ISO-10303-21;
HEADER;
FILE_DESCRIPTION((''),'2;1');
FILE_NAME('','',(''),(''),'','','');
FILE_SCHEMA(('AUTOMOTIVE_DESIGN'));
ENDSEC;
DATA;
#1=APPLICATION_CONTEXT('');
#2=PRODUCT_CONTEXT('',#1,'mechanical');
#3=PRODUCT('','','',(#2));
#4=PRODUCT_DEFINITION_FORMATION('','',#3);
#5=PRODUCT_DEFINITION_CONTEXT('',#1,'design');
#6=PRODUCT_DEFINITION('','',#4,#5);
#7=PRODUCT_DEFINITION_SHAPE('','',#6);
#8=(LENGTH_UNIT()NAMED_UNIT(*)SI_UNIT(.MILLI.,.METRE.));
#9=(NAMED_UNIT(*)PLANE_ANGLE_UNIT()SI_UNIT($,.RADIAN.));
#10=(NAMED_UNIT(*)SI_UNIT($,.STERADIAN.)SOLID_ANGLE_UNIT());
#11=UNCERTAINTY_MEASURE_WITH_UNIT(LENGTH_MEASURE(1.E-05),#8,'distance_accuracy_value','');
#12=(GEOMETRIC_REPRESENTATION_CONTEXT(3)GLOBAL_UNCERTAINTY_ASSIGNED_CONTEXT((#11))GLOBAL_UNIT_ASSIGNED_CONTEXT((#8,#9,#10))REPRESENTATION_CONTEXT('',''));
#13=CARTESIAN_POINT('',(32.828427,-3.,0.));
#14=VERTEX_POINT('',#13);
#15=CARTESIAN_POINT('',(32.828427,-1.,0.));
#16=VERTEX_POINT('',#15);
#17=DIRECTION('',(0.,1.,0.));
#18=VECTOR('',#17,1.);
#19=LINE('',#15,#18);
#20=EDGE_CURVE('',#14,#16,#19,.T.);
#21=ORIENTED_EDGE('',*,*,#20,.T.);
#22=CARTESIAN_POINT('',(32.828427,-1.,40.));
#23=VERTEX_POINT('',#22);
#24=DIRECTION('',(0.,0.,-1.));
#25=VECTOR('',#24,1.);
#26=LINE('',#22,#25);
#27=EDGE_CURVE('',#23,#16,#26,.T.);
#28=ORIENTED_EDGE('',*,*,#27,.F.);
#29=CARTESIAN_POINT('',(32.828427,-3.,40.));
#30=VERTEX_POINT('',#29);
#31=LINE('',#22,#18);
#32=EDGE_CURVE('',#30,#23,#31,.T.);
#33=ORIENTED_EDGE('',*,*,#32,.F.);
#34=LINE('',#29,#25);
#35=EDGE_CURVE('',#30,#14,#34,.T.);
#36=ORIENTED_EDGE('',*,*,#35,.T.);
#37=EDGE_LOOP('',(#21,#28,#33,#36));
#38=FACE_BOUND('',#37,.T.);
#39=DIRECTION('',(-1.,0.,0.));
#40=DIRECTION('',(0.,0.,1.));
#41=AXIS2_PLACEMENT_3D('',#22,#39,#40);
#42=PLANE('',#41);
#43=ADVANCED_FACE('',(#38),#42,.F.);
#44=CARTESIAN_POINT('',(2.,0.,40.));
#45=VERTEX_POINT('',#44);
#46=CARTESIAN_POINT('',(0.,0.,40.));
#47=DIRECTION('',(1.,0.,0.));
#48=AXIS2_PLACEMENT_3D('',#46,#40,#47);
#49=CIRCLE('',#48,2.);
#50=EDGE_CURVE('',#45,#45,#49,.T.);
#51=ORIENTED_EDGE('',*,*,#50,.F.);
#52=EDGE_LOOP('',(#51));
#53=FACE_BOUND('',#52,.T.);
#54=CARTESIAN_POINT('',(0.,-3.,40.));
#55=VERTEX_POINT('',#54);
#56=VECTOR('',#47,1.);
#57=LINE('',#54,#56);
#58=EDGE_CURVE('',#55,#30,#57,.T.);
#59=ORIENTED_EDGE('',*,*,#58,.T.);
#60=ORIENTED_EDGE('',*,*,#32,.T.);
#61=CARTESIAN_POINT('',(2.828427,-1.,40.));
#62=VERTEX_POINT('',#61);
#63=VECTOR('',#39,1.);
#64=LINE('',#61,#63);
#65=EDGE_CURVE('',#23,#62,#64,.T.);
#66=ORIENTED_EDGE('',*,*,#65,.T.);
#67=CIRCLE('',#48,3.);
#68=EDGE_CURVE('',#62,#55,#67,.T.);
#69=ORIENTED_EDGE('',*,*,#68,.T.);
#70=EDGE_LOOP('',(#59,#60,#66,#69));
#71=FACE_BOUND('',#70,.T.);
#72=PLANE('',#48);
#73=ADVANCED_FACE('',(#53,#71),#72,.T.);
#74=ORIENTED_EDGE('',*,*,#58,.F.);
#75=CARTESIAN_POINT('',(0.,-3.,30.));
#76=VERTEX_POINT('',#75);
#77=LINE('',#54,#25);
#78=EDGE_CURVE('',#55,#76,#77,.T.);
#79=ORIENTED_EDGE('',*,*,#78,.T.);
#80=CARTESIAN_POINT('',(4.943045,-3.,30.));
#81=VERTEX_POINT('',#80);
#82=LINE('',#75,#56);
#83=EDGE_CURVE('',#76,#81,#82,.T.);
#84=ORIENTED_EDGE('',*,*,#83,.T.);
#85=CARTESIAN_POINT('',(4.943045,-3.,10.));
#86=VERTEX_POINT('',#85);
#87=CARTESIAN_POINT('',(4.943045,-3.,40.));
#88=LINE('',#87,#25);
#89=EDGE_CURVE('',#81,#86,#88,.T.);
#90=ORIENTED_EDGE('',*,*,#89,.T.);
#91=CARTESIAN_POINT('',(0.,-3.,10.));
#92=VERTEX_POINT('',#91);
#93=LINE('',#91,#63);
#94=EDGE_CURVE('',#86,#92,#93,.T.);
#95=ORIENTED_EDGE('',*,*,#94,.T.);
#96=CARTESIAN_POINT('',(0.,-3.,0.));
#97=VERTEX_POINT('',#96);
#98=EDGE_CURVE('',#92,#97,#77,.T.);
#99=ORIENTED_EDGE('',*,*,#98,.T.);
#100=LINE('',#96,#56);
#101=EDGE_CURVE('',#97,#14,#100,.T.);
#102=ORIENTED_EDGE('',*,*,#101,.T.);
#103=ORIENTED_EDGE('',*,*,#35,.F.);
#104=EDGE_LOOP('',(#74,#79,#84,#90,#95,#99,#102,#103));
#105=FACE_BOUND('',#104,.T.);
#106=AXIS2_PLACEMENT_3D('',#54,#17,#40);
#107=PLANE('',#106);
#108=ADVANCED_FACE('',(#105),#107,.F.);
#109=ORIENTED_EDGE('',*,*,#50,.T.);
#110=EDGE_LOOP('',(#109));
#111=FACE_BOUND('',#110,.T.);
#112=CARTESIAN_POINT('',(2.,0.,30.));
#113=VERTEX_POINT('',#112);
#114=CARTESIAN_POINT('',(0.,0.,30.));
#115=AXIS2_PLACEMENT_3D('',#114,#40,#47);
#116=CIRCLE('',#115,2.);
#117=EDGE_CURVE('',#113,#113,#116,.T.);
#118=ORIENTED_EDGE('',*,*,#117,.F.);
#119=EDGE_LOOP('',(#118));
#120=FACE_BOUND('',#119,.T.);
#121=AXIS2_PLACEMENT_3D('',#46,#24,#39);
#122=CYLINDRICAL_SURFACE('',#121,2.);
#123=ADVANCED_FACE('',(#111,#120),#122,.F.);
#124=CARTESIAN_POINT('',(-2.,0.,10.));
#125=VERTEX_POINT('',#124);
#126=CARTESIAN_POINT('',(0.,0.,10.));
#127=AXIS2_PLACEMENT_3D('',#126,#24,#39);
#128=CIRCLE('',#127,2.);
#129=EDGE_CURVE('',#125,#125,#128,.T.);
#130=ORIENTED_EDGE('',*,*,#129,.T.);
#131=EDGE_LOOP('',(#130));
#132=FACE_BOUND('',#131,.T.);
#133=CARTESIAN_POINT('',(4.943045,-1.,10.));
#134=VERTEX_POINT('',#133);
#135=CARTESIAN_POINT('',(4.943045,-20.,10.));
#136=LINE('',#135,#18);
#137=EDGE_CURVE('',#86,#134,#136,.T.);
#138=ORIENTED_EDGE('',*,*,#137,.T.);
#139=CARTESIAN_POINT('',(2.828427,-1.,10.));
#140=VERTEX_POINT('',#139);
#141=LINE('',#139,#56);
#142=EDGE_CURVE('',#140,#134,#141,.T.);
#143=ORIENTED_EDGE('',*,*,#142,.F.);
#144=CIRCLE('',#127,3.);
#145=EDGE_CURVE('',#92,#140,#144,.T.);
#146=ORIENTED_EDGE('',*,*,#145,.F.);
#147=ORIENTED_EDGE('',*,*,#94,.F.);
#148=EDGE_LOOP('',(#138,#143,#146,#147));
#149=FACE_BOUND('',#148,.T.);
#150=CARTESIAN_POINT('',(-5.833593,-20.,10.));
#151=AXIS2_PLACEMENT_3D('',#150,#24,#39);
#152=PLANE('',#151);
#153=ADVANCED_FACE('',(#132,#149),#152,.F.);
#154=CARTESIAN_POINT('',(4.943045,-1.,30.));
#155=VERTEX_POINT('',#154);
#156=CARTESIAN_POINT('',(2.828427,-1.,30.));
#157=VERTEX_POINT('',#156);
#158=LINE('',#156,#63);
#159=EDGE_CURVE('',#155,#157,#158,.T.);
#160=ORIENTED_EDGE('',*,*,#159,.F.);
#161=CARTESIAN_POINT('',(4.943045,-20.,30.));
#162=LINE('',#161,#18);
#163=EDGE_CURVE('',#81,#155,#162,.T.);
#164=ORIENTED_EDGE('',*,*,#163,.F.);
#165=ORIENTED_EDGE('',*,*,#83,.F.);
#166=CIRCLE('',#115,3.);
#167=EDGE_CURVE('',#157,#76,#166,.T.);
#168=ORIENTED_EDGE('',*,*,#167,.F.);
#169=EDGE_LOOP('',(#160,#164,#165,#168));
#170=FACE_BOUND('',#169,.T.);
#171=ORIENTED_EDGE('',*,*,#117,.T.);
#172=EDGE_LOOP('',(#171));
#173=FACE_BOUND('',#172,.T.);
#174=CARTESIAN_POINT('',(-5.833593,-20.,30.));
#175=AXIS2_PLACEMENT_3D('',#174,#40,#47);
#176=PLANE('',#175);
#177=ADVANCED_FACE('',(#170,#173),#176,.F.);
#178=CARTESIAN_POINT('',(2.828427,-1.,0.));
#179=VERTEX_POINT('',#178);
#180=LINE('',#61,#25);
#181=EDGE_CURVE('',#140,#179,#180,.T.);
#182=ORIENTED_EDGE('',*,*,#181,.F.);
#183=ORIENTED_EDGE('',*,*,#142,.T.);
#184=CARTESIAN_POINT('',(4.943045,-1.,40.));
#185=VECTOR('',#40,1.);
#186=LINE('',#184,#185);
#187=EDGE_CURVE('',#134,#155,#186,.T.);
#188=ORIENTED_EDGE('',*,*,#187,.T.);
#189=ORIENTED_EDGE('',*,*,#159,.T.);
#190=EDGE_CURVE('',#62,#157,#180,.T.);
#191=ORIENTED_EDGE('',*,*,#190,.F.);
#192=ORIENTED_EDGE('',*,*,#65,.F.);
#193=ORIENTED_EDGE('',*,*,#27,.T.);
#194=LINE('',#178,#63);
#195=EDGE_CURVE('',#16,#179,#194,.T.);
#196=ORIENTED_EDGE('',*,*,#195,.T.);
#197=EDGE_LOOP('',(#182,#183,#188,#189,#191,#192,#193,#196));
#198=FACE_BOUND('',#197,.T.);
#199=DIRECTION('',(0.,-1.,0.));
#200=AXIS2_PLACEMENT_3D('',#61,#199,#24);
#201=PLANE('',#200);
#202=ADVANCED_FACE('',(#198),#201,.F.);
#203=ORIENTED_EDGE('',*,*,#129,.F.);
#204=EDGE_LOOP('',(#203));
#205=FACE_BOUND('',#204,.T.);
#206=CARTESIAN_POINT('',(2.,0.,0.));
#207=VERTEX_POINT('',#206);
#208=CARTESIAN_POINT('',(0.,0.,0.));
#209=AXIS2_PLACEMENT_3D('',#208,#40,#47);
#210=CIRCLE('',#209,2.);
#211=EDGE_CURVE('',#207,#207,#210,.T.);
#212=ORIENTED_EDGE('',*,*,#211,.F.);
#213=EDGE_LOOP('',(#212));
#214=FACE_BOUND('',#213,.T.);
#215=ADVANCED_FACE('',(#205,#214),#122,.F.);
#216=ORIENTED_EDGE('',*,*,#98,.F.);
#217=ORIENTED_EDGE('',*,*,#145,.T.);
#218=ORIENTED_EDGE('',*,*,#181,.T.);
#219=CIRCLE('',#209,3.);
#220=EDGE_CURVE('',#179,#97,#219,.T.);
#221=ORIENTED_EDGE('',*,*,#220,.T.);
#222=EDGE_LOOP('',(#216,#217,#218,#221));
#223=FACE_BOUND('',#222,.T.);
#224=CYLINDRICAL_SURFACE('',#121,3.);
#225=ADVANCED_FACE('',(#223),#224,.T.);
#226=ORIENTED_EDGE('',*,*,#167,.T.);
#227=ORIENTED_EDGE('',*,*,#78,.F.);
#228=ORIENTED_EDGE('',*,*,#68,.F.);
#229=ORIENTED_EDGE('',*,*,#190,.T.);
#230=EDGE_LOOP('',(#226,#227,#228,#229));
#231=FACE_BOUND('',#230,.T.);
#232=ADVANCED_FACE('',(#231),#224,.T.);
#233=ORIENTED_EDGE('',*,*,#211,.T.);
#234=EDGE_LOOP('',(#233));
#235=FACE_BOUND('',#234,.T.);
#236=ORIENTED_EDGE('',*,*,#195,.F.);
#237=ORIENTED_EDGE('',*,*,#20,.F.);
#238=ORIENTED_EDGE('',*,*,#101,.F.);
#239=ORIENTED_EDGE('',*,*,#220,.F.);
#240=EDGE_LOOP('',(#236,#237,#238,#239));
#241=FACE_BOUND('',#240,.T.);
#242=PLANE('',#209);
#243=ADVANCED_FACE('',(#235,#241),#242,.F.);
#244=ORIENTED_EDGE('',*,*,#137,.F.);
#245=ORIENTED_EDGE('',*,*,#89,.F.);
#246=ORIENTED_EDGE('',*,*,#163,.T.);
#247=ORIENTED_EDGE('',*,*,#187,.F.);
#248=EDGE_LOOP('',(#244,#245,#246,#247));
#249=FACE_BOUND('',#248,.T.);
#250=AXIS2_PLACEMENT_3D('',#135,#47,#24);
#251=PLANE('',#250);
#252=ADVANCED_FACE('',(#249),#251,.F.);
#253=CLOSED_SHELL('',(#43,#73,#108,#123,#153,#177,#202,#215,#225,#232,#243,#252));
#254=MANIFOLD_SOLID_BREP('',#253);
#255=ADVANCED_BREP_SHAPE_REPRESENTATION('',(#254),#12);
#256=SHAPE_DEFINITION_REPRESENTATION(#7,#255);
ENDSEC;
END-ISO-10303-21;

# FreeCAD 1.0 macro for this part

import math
import FreeCAD as App
import Part
import Sketcher
from FreeCAD import Vector
Q = App.Units.Quantity

doc = App.newDocument("Part")
params = doc.addObject("Spreadsheet::Sheet", "Params")
for row, (alias, value) in enumerate([
    ("sketch1_diameter", "4 mm"),
    ("sketch1_radius", "3 mm"),
    ("sketch1_width", "30 mm"),
    ("sketch1_height", "2 mm"),
    ("pad1_length", "40 mm"),
    ("sketch2_height", "20 mm"),
    ("pocket1_length", "40 mm"),
], start=1):
    params.set(f"A{row}", alias)
    params.set(f"B{row}", "=" + value)
    params.setAlias(f"B{row}", alias)

body = doc.addObject("PartDesign::Body", "Body")

sketch1 = doc.addObject("Sketcher::SketchObject", "Sketch")
body.addObject(sketch1)
sketch1.AttachmentSupport = (doc.XY_Plane, [""])
sketch1.MapMode = "FlatFace"
sketch1.addGeometry([
    Part.LineSegment(Vector(32.8, -1, 0), Vector(2.8, -1, 0)),
    Part.ArcOfCircle(Part.Circle(Vector(0, 0, 0), Vector(0, 0, 1), 3), math.radians(-19), math.radians(270)),
    Part.LineSegment(Vector(0, -3, 0), Vector(32.8, -3, 0)),
    Part.LineSegment(Vector(32.8, -3, 0), Vector(32.8, -1, 0)),
    Part.Circle(Vector(0, 0, 0), Vector(0, 0, 1), 2),
], False)
sketch1.addConstraint([
    Sketcher.Constraint("Coincident", 0, 2, 1, 1),
    Sketcher.Constraint("Tangent", 1, 2, 2, 1),
    Sketcher.Constraint("Coincident", 2, 2, 3, 1),
    Sketcher.Constraint("Coincident", 3, 2, 0, 1),
    Sketcher.Constraint("Horizontal", 0),
    Sketcher.Constraint("Horizontal", 2),
    Sketcher.Constraint("Vertical", 3),
    Sketcher.Constraint("Coincident", 1, 3, -1, 1),
    Sketcher.Constraint("Coincident", 4, 3, -1, 1),
    Sketcher.Constraint("Diameter", 4, Q("4 mm")),
    Sketcher.Constraint("Radius", 1, Q("3 mm")),
    Sketcher.Constraint("DistanceX", 0, 2, 0, 1, Q("30 mm")),
    Sketcher.Constraint("DistanceY", 3, 1, 3, 2, Q("2 mm")),
])
sketch1.setExpression("Constraints[9]", "Params.sketch1_diameter")
sketch1.setExpression("Constraints[10]", "Params.sketch1_radius")
sketch1.setExpression("Constraints[11]", "Params.sketch1_width")
sketch1.setExpression("Constraints[12]", "Params.sketch1_height")
pad1 = doc.addObject("PartDesign::Pad", "Pad")
body.addObject(pad1)
pad1.Profile = sketch1
pad1.setExpression("Length", "Params.pad1_length")

sketch2 = doc.addObject("Sketcher::SketchObject", "Sketch001")
body.addObject(sketch2)
sketch2.AttachmentSupport = (doc.XZ_Plane, [""])
sketch2.MapMode = "FlatFace"
sketch2.addGeometry([
    Part.LineSegment(Vector(-6, 10, 0), Vector(-6, 30, 0)),
    Part.LineSegment(Vector(-6, 30, 0), Vector(5, 30, 0)),
    Part.LineSegment(Vector(5, 30, 0), Vector(5, 10, 0)),
    Part.LineSegment(Vector(5, 10, 0), Vector(-6, 10, 0)),
], False)
sketch2.addConstraint([
    Sketcher.Constraint("Coincident", 0, 2, 1, 1),
    Sketcher.Constraint("Coincident", 1, 2, 2, 1),
    Sketcher.Constraint("Coincident", 2, 2, 3, 1),
    Sketcher.Constraint("Coincident", 3, 2, 0, 1),
    Sketcher.Constraint("Vertical", 0),
    Sketcher.Constraint("Horizontal", 1),
    Sketcher.Constraint("Vertical", 2),
    Sketcher.Constraint("Horizontal", 3),
    Sketcher.Constraint("DistanceY", 0, 1, 0, 2, Q("20 mm")),
    Sketcher.Constraint("DistanceY", -1, 1, 0, 2, Q("30 mm")),
    Sketcher.Constraint("DistanceX", 1, 1, 1, 2, Q("10.776638 mm")),
    Sketcher.Constraint("DistanceX", 0, 2, -1, 1, Q("5.833593 mm")),
])
sketch2.setExpression("Constraints[8]", "Params.sketch2_height")
pocket1 = doc.addObject("PartDesign::Pocket", "Pocket")
body.addObject(pocket1)
pocket1.Profile = sketch2
pocket1.setExpression("Length", "Params.pocket1_length")
pocket1.Midplane = True

doc.recompute()
